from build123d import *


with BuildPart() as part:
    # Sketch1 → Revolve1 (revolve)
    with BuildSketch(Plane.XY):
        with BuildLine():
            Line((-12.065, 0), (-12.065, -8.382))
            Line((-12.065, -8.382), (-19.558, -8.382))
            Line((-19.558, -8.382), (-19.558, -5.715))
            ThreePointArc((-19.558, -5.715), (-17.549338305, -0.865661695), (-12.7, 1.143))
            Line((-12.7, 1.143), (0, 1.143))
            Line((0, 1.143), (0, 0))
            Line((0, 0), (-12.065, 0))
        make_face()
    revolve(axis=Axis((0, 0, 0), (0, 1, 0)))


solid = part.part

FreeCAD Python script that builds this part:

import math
import FreeCAD as App
import Part
import Sketcher
Q = App.Units.Quantity

doc = App.newDocument("Part")
params = doc.addObject("Spreadsheet::Sheet", "Params")
for row, (alias, value) in enumerate([
    ("sketch1_radius", "0.27 in"),
    ("sketch1_width", "0.5 in"),
    ("sketch1_height", "0.33 in"),
    ("sketch1_width2", "0.475 in"),
    ("sketch1_height2", "0.045 in"),
    ("revolution_angle", "360 deg"),
], start=1):
    params.set(f"A{row}", alias)
    params.set(f"B{row}", "=" + value)
    params.setAlias(f"B{row}", alias)

body = doc.addObject("PartDesign::Body", "Body")

sketch1 = doc.addObject("Sketcher::SketchObject", "Sketch")
body.addObject(sketch1)
sketch1.AttachmentSupport = (doc.XY_Plane, [""])
sketch1.MapMode = "FlatFace"
sketch1.addGeometry(Part.LineSegment(App.Vector(-12.1, -8.4, 0), App.Vector(-12.1, 0, 0)), False)
sketch1.addGeometry(Part.LineSegment(App.Vector(-12.1, 0, 0), App.Vector(0, 0, 0)), False)
sketch1.addGeometry(Part.LineSegment(App.Vector(0, 0, 0), App.Vector(0, 1.1, 0)), False)
sketch1.addGeometry(Part.LineSegment(App.Vector(0, 1.1, 0), App.Vector(-12.7, 1.1, 0)), False)
sketch1.addGeometry(Part.ArcOfCircle(Part.Circle(App.Vector(-12.7, -5.7, 0), App.Vector(0, 0, 1), 6.9), math.radians(90), math.radians(180)), False)
sketch1.addGeometry(Part.LineSegment(App.Vector(-19.6, -5.7, 0), App.Vector(-19.6, -8.4, 0)), False)
sketch1.addGeometry(Part.LineSegment(App.Vector(-19.6, -8.4, 0), App.Vector(-12.1, -8.4, 0)), False)
sketch1.addConstraint(Sketcher.Constraint("Coincident", 0, 2, 1, 1))
sketch1.addConstraint(Sketcher.Constraint("Coincident", 1, 2, 2, 1))
sketch1.addConstraint(Sketcher.Constraint("Coincident", 2, 2, 3, 1))
sketch1.addConstraint(Sketcher.Constraint("Tangent", 3, 2, 4, 1))
sketch1.addConstraint(Sketcher.Constraint("Tangent", 4, 2, 5, 1))
sketch1.addConstraint(Sketcher.Constraint("Coincident", 5, 2, 6, 1))
sketch1.addConstraint(Sketcher.Constraint("Coincident", 6, 2, 0, 1))
sketch1.addConstraint(Sketcher.Constraint("Vertical", 0))
sketch1.addConstraint(Sketcher.Constraint("Horizontal", 1))
sketch1.addConstraint(Sketcher.Constraint("Vertical", 2))
sketch1.addConstraint(Sketcher.Constraint("Horizontal", 3))
sketch1.addConstraint(Sketcher.Constraint("Vertical", 5))
sketch1.addConstraint(Sketcher.Constraint("Horizontal", 6))
sketch1.addConstraint(Sketcher.Constraint("Coincident", 1, 2, -1, 1))
sketch1.addConstraint(Sketcher.Constraint("Radius", 4, Q("0.27 in")))
sketch1.addConstraint(Sketcher.Constraint("DistanceX", 3, 2, 3, 1, Q("0.5 in")))
sketch1.addConstraint(Sketcher.Constraint("DistanceY", 0, 1, 0, 2, Q("0.33 in")))
sketch1.addConstraint(Sketcher.Constraint("DistanceX", 1, 1, 1, 2, Q("0.475 in")))
sketch1.addConstraint(Sketcher.Constraint("DistanceY", 2, 1, 2, 2, Q("0.045 in")))
sketch1.setExpression("Constraints[14]", "Params.sketch1_radius")
sketch1.setExpression("Constraints[15]", "Params.sketch1_width")
sketch1.setExpression("Constraints[16]", "Params.sketch1_height")
sketch1.setExpression("Constraints[17]", "Params.sketch1_width2")
sketch1.setExpression("Constraints[18]", "Params.sketch1_height2")
revolution = doc.addObject("PartDesign::Revolution", "Revolution")
body.addObject(revolution)
revolution.Profile = sketch1
revolution.ReferenceAxis = (sketch1, ["V_Axis"])
revolution.setExpression("Angle", "Params.revolution_angle")

doc.recompute()
